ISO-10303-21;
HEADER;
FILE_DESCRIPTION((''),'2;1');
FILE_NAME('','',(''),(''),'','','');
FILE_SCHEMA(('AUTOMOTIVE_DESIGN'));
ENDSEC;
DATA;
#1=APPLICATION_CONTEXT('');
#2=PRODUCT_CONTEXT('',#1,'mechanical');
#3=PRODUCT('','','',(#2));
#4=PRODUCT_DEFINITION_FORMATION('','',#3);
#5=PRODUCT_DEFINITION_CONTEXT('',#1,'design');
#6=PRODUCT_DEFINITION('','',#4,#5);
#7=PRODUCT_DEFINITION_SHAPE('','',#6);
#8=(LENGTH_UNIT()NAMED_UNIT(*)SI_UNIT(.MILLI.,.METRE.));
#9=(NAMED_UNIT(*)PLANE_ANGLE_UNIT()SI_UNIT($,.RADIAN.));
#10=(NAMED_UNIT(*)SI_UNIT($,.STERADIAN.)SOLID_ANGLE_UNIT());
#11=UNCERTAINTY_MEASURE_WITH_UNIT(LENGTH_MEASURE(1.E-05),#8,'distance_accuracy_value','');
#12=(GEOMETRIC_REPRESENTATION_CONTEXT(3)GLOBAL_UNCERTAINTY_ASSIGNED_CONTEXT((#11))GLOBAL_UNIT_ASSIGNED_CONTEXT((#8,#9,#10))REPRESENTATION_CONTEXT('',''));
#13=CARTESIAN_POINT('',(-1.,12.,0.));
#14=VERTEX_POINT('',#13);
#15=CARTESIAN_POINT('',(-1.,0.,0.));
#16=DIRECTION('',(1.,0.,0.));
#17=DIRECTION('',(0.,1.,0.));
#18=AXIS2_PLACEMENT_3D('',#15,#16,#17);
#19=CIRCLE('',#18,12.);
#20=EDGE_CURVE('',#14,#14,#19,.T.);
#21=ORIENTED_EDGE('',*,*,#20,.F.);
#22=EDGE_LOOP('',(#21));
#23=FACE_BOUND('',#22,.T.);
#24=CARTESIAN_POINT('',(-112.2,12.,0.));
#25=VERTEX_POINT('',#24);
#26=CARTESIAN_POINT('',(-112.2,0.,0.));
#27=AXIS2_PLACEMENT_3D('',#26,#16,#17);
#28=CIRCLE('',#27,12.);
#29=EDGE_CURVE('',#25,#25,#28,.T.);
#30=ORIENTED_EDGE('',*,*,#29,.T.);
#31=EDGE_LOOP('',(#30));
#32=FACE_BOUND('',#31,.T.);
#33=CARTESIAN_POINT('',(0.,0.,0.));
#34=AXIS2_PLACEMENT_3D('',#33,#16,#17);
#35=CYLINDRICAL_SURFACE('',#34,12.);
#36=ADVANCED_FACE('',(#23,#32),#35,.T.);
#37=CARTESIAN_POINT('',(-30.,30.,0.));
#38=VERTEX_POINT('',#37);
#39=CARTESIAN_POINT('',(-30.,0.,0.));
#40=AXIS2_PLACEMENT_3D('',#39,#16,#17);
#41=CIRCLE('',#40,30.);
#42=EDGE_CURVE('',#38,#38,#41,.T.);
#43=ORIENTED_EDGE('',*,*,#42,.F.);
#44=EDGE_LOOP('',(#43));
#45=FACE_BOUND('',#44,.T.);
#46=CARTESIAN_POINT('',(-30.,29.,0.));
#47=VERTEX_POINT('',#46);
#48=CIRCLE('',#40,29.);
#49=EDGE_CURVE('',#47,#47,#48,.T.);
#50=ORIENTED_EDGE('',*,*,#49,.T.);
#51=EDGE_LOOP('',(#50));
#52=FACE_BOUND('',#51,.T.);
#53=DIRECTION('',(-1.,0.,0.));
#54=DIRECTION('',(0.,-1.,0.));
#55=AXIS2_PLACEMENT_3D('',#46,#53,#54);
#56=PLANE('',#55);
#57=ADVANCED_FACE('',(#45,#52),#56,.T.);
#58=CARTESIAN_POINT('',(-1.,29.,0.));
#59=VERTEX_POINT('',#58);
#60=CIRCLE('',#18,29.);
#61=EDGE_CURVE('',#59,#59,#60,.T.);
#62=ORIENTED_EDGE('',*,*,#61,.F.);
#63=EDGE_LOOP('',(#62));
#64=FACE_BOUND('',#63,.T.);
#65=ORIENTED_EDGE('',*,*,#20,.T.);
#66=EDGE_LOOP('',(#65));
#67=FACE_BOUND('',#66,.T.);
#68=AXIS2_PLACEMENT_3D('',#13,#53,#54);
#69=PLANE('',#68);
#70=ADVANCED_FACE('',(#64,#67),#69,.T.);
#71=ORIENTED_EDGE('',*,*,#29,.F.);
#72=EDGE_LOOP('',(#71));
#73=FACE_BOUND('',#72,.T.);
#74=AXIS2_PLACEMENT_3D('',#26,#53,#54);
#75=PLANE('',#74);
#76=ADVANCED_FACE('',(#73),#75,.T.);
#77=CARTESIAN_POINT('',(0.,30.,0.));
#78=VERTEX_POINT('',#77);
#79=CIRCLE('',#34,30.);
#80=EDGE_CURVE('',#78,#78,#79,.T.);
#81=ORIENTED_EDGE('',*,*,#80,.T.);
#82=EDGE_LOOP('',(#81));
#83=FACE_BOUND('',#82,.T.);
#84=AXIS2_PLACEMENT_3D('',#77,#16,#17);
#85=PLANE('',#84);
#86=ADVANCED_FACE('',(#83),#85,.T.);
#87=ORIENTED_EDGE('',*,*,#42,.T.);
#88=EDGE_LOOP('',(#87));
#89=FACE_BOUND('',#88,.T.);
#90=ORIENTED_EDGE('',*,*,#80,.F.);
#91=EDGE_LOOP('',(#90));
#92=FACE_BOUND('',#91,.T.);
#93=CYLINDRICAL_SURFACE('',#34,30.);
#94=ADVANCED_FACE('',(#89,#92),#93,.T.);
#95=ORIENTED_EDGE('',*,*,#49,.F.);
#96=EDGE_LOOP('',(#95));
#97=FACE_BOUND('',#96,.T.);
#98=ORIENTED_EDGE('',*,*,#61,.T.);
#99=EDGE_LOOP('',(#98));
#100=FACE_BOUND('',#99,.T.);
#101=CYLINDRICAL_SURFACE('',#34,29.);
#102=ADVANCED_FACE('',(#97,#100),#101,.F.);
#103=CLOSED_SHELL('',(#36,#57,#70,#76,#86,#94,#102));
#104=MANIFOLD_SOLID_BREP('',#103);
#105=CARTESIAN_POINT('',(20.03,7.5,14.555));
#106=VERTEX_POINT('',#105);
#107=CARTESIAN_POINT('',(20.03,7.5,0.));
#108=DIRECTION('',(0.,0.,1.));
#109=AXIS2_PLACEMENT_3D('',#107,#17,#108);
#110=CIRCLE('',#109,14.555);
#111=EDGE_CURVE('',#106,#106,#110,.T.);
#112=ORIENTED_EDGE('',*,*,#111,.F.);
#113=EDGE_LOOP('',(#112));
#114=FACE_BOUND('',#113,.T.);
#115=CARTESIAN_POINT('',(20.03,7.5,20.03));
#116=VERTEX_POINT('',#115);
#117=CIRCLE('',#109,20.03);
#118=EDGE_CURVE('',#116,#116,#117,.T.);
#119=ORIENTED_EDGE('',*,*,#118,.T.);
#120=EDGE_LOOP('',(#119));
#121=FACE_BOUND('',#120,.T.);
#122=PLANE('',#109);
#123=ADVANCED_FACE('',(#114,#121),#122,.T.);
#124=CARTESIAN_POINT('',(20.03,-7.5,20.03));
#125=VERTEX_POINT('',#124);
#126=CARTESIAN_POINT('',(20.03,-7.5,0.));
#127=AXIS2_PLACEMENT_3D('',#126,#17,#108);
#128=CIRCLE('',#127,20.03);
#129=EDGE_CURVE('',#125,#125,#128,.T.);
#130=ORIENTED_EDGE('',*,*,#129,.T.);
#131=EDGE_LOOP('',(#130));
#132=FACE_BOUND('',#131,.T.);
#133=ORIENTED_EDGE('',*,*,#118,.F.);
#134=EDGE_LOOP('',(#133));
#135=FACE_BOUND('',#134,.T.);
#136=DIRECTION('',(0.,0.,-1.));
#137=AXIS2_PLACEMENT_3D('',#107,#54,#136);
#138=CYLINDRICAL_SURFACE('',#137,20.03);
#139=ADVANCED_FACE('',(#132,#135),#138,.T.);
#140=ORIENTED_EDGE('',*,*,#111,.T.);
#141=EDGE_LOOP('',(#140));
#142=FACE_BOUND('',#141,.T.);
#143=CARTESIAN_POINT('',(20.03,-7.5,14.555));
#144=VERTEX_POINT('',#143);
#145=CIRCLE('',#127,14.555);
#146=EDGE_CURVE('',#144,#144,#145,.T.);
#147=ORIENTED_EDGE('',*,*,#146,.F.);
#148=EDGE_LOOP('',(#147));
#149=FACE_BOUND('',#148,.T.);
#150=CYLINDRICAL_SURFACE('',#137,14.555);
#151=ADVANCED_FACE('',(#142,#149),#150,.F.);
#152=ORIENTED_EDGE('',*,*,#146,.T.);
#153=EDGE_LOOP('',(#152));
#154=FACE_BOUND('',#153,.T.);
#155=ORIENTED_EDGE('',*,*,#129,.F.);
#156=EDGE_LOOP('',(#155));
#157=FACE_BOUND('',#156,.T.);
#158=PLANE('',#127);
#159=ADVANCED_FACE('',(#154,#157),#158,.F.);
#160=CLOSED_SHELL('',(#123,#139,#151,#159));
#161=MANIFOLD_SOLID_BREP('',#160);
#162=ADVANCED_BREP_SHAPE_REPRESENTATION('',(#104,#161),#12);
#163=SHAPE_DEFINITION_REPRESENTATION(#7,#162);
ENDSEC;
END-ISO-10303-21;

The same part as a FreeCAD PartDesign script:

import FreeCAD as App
import Part
import Sketcher

V = App.Vector
Q = App.Units.Quantity

doc = App.newDocument("Part")
params = doc.addObject("Spreadsheet::Sheet", "Params")
for row, (alias, value) in enumerate([
    ("sketch1_width", "30 mm"),
    ("sketch1_width2", "29 mm"),
    ("sketch1_height", "1 mm"),
    ("sketch1_height2", "17 mm"),
    ("sketch1_width3", "112.2 mm"),
    ("revolution_angle", "360 deg"),
    ("sketch2_diameter", "40.06 mm"),
    ("sketch2_diameter2", "29.11 mm"),
    ("pad1_length", "15 mm"),
], start=1):
    params.set(f"A{row}", alias)
    params.set(f"B{row}", "=" + value)
    params.setAlias(f"B{row}", alias)

body = doc.addObject("PartDesign::Body", "Body")

# Sketch on XY plane
sketch1 = body.newObject("Sketcher::SketchObject", "Sketch")
sketch1.AttachmentSupport = (doc.getObject("XY_Plane"), [""])
sketch1.MapMode = "FlatFace"
sketch1.addGeometry([
    Part.LineSegment(V(-112.2, 0, 0), V(0, 0, 0)),  # 0
    Part.LineSegment(V(0, 0, 0), V(0, 30, 0)),  # 1
    Part.LineSegment(V(0, 30, 0), V(-30, 30, 0)),  # 2
    Part.LineSegment(V(-30, 30, 0), V(-30, 29, 0)),  # 3
    Part.LineSegment(V(-30, 29, 0), V(-1, 29, 0)),  # 4
    Part.LineSegment(V(-1, 29, 0), V(-1, 12, 0)),  # 5
    Part.LineSegment(V(-1, 12, 0), V(-112.2, 12, 0)),  # 6
    Part.LineSegment(V(-112.2, 12, 0), V(-112.2, 0, 0)),  # 7
], False)
sketch1.addConstraint([
    Sketcher.Constraint("Coincident", 0, 2, 1, 1),
    Sketcher.Constraint("Coincident", 1, 2, 2, 1),
    Sketcher.Constraint("Coincident", 2, 2, 3, 1),
    Sketcher.Constraint("Coincident", 3, 2, 4, 1),
    Sketcher.Constraint("Coincident", 4, 2, 5, 1),
    Sketcher.Constraint("Coincident", 5, 2, 6, 1),
    Sketcher.Constraint("Coincident", 6, 2, 7, 1),
    Sketcher.Constraint("Coincident", 7, 2, 0, 1),
    Sketcher.Constraint("Horizontal", 0),
    Sketcher.Constraint("Vertical", 1),
    Sketcher.Constraint("Horizontal", 2),
    Sketcher.Constraint("Vertical", 3),
    Sketcher.Constraint("Horizontal", 4),
    Sketcher.Constraint("Vertical", 5),
    Sketcher.Constraint("Horizontal", 6),
    Sketcher.Constraint("Vertical", 7),
    Sketcher.Constraint("Coincident", 0, 2, -1, 1),
    Sketcher.Constraint("Equal", 2, 1),
    Sketcher.Constraint("DistanceX", 2, 2, 2, 1, Q("30 mm")),
    Sketcher.Constraint("DistanceX", 4, 1, 4, 2, Q("29 mm")),
    Sketcher.Constraint("DistanceY", 3, 2, 3, 1, Q("1 mm")),
    Sketcher.Constraint("DistanceY", 5, 2, 5, 1, Q("17 mm")),
    Sketcher.Constraint("DistanceX", 0, 1, 0, 2, Q("112.2 mm")),
])
sketch1.setExpression("Constraints[18]", "Params.sketch1_width")
sketch1.setExpression("Constraints[19]", "Params.sketch1_width2")
sketch1.setExpression("Constraints[20]", "Params.sketch1_height")
sketch1.setExpression("Constraints[21]", "Params.sketch1_height2")
sketch1.setExpression("Constraints[22]", "Params.sketch1_width3")
revolution = body.newObject("PartDesign::Revolution", "Revolution")
revolution.Profile = sketch1
revolution.ReferenceAxis = (sketch1, ["H_Axis"])
revolution.setExpression("Angle", "Params.revolution_angle")
body2 = doc.addObject("PartDesign::Body", "Body001")

# Sketch on XZ plane
sketch2 = body2.newObject("Sketcher::SketchObject", "Sketch001")
sketch2.AttachmentSupport = (doc.getObject("XZ_Plane001"), [""])
sketch2.MapMode = "FlatFace"
sketch2.addGeometry([
    Part.Circle(V(20.03, 0, 0), V(0, 0, 1), 20.03),
    Part.Circle(V(20.03, 0, 0), V(0, 0, 1), 14.555),
], False)
sketch2.addConstraint([
    Sketcher.Constraint("Coincident", 1, 3, 0, 3),
    Sketcher.Constraint("PointOnObject", 0, 3, -1),
    Sketcher.Constraint("Diameter", 0, Q("40.06 mm")),
    Sketcher.Constraint("Diameter", 1, Q("29.11 mm")),
    Sketcher.Constraint("DistanceX", -1, 1, 0, 3, Q("20.03 mm")),
])
sketch2.setExpression("Constraints[2]", "Params.sketch2_diameter")
sketch2.setExpression("Constraints[3]", "Params.sketch2_diameter2")
pad1 = body2.newObject("PartDesign::Pad", "Pad")
pad1.Profile = sketch2
pad1.setExpression("Length", "Params.pad1_length")
pad1.Midplane = True

doc.recompute()
